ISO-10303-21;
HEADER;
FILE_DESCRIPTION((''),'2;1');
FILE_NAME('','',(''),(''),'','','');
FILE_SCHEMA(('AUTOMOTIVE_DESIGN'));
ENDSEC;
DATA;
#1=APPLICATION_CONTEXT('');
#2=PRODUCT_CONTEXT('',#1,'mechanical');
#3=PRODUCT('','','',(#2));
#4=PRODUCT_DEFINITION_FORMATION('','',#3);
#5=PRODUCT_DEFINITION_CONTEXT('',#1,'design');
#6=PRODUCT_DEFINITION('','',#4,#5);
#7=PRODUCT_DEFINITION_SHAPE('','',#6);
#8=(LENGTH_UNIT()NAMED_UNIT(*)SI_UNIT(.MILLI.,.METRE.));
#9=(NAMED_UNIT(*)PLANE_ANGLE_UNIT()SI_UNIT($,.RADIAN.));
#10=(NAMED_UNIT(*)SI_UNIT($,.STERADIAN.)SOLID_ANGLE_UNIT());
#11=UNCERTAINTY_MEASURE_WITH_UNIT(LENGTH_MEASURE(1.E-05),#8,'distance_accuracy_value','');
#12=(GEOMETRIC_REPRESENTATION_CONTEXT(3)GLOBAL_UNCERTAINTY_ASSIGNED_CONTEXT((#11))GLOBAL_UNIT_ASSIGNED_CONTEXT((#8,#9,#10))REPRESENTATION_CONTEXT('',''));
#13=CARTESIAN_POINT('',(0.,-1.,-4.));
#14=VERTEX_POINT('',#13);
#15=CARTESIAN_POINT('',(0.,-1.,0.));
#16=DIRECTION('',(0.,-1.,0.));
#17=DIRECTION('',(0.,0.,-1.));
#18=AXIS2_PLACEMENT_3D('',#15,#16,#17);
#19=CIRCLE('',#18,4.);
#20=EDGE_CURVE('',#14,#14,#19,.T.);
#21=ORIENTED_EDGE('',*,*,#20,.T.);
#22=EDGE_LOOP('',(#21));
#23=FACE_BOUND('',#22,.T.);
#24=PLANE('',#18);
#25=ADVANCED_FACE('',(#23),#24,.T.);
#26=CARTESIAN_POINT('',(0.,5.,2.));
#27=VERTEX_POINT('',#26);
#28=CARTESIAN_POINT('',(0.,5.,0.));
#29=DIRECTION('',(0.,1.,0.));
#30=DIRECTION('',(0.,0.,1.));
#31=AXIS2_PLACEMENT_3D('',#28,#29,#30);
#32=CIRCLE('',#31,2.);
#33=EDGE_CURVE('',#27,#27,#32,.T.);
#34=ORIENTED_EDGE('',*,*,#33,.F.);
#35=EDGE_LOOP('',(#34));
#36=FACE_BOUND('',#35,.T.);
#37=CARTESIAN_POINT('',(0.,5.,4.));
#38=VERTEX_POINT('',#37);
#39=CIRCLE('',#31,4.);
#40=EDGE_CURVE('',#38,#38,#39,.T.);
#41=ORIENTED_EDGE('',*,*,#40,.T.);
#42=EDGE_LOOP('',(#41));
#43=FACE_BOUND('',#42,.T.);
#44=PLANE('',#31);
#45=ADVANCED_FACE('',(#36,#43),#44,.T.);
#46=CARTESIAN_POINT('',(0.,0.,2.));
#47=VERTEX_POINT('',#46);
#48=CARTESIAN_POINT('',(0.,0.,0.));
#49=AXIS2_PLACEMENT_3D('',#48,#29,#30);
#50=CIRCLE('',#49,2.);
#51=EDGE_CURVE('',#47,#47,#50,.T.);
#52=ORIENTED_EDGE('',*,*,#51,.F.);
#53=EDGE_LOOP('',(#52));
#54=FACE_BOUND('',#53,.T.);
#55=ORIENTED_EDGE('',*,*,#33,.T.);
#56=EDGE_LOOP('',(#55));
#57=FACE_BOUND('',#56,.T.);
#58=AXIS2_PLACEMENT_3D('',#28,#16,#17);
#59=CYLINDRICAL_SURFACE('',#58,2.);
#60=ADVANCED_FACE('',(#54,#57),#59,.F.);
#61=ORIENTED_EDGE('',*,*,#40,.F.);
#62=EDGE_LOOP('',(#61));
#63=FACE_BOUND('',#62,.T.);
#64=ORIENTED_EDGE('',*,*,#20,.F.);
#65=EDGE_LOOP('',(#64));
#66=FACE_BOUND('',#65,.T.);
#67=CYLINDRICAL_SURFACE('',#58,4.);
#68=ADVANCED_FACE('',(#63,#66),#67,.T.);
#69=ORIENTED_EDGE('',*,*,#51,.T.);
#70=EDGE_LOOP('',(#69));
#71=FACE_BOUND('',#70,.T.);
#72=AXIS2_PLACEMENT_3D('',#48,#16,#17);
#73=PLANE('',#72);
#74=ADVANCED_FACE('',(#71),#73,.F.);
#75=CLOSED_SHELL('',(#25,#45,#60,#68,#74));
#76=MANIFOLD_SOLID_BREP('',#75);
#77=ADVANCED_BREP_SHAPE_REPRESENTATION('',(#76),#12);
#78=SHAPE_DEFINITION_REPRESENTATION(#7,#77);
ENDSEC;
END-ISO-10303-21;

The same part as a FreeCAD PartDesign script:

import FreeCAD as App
import Part
import Sketcher

V = App.Vector

doc = App.newDocument("Part")
params = doc.addObject("Spreadsheet::Sheet", "Params")
for row, (alias, value) in enumerate([
    ("sketch1_diameter", "8 mm"),
    ("sketch1_diameter2", "4 mm"),
    ("pad1_length", "5 mm"),
    ("sketch2_diameter", "8 mm"),
    ("pad2_length", "1 mm"),
], start=1):
    params.set(f"A{row}", alias)
    params.set(f"B{row}", "=" + value)
    params.setAlias(f"B{row}", alias)

body = doc.addObject("PartDesign::Body", "Body")

sketch1 = body.newObject("Sketcher::SketchObject", "Sketch")
sketch1.AttachmentSupport = (doc.getObject("XZ_Plane"), [""])
sketch1.MapMode = "FlatFace"
sketch1.addGeometry(Part.Circle(V(0, 0, 0), V(0, 0, 1), 4), False)
sketch1.addGeometry(Part.Circle(V(0, 0, 0), V(0, 0, 1), 2), False)
sketch1.addConstraint(Sketcher.Constraint("Coincident", 0, 3, -1, 1))
sketch1.addConstraint(Sketcher.Constraint("Coincident", 1, 3, -1, 1))
sketch1.addConstraint(Sketcher.Constraint("Diameter", 0, 8.0))
sketch1.addConstraint(Sketcher.Constraint("Diameter", 1, 4.0))
sketch1.setExpression("Constraints[2]", "Params.sketch1_diameter")
sketch1.setExpression("Constraints[3]", "Params.sketch1_diameter2")
pad1 = body.newObject("PartDesign::Pad", "Pad")
pad1.Profile = sketch1
pad1.setExpression("Length", "Params.pad1_length")
pad1.Reversed = True

sketch2 = body.newObject("Sketcher::SketchObject", "Sketch001")
sketch2.AttachmentSupport = (doc.getObject("XZ_Plane"), [""])
sketch2.MapMode = "FlatFace"
sketch2.AttachmentOffset = App.Placement(V(0, 0, 1), App.Rotation())
sketch2.addGeometry(Part.Circle(V(0, 0, 0), V(0, 0, 1), 4), False)
sketch2.addConstraint(Sketcher.Constraint("Coincident", 0, 3, -1, 1))
sketch2.addConstraint(Sketcher.Constraint("Diameter", 0, 8.0))
sketch2.setExpression("Constraints[1]", "Params.sketch2_diameter")
pad2 = body.newObject("PartDesign::Pad", "Pad001")
pad2.Profile = sketch2
pad2.setExpression("Length", "Params.pad2_length")
pad2.Reversed = True

doc.recompute()
